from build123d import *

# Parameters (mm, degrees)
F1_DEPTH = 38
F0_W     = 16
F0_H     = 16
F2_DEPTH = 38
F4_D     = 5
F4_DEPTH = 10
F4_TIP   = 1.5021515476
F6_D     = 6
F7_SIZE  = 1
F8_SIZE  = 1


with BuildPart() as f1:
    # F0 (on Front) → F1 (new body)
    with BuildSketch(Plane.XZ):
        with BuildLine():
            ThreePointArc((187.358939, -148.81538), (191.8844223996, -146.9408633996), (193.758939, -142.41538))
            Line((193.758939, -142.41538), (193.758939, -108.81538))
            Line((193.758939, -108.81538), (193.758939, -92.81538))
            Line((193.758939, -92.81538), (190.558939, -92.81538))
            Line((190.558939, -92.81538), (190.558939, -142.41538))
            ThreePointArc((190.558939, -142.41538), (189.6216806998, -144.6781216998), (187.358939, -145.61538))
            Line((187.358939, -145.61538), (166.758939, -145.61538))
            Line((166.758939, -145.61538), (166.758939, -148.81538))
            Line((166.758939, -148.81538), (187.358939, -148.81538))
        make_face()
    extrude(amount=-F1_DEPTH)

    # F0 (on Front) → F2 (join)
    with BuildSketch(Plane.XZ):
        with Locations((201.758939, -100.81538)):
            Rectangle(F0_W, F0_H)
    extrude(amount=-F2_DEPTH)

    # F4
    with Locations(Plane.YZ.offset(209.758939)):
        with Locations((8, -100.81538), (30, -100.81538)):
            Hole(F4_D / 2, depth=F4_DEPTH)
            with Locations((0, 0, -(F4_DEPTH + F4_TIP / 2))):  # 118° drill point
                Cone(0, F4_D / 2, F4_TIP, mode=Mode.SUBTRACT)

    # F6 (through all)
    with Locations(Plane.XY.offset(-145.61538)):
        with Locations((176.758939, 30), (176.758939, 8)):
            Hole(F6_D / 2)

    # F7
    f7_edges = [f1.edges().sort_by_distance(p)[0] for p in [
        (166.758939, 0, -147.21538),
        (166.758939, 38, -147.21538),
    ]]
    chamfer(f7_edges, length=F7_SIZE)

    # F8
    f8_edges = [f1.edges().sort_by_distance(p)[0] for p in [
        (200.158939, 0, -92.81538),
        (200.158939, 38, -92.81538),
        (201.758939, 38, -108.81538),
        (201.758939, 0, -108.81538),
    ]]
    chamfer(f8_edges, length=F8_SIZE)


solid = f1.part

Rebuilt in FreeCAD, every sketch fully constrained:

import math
import FreeCAD as App
import Part
import Sketcher
from FreeCAD import Vector


def edges_at(feature, points):
    """Names of the edges that pass closest to the given points."""
    edges = feature.Shape.Edges
    near = lambda p: min(range(len(edges)), key=lambda i: edges[i].distToShape(Part.Vertex(*p))[0])
    return sorted({f"Edge{near(p) + 1}" for p in points})


def add_polygon(sketch, points):
    """Adds a closed chain of lines whose ends are joined by coincident constraints."""
    first, n = sketch.GeometryCount, len(points)
    for a, b in zip(points, points[1:] + points[:1]):
        sketch.addGeometry(Part.LineSegment(App.Vector(*a, 0), App.Vector(*b, 0)), False)
    for i in range(n):
        sketch.addConstraint(Sketcher.Constraint("Coincident", first + i, 2, first + (i + 1) % n, 1))

doc = App.newDocument("Part")
params = doc.addObject("Spreadsheet::Sheet", "Params")
for row, (alias, value) in enumerate([
    ("sketch1_radius", "6.4 mm"),
    ("sketch1_radius2", "3.2 mm"),
    ("sketch1_width", "20.6 mm"),
    ("sketch1_height", "49.6 mm"),
    ("pad1_length", "38 mm"),
    ("sketch2_width", "16 mm"),
    ("pad2_length", "38 mm"),
    ("sketch3_diameter", "5 mm"),
    ("hole_diameter", "5 mm"),
    ("hole_depth", "10 mm"),
    ("sketch4_diameter", "6 mm"),
    ("hole2_diameter", "6 mm"),
    ("chamfer_size", "1 mm"),
    ("chamfer2_size", "1 mm"),
], start=1):
    params.set(f"A{row}", alias)
    params.set(f"B{row}", "=" + value)
    params.setAlias(f"B{row}", alias)

body = doc.addObject("PartDesign::Body", "Body")

# Sketch on XZ plane
sketch1 = doc.addObject("Sketcher::SketchObject", "Sketch")
body.addObject(sketch1)
sketch1.AttachmentSupport = (doc.XZ_Plane, [""])
sketch1.MapMode = "FlatFace"
sketch1.addGeometry(Part.ArcOfCircle(Part.Circle(Vector(187.4, -142.4, 0), Vector(0, 0, 1), 6.4), math.radians(-90), math.radians(0)), False)
sketch1.addGeometry(Part.LineSegment(Vector(193.8, -142.4, 0), Vector(193.8, -92.8, 0)), False)
sketch1.addGeometry(Part.LineSegment(Vector(193.8, -92.8, 0), Vector(190.6, -92.8, 0)), False)
sketch1.addGeometry(Part.LineSegment(Vector(190.6, -92.8, 0), Vector(190.6, -142.4, 0)), False)
sketch1.addGeometry(Part.ArcOfCircle(Part.Circle(Vector(187.4, -142.4, 0), Vector(0, 0, 1), 3.2), math.radians(-90), math.radians(0)), False)
sketch1.addGeometry(Part.LineSegment(Vector(187.4, -145.6, 0), Vector(166.8, -145.6, 0)), False)
sketch1.addGeometry(Part.LineSegment(Vector(166.8, -145.6, 0), Vector(166.8, -148.8, 0)), False)
sketch1.addGeometry(Part.LineSegment(Vector(166.8, -148.8, 0), Vector(187.4, -148.8, 0)), False)
sketch1.addConstraint(Sketcher.Constraint("Tangent", 0, 2, 1, 1))
sketch1.addConstraint(Sketcher.Constraint("Coincident", 1, 2, 2, 1))
sketch1.addConstraint(Sketcher.Constraint("Coincident", 2, 2, 3, 1))
sketch1.addConstraint(Sketcher.Constraint("Tangent", 3, 2, 4, 2))
sketch1.addConstraint(Sketcher.Constraint("Tangent", 4, 1, 5, 1))
sketch1.addConstraint(Sketcher.Constraint("Coincident", 5, 2, 6, 1))
sketch1.addConstraint(Sketcher.Constraint("Coincident", 6, 2, 7, 1))
sketch1.addConstraint(Sketcher.Constraint("Tangent", 7, 2, 0, 1))
sketch1.addConstraint(Sketcher.Constraint("Vertical", 1))
sketch1.addConstraint(Sketcher.Constraint("Horizontal", 2))
sketch1.addConstraint(Sketcher.Constraint("Vertical", 3))
sketch1.addConstraint(Sketcher.Constraint("Horizontal", 5))
sketch1.addConstraint(Sketcher.Constraint("Vertical", 6))
sketch1.addConstraint(Sketcher.Constraint("Horizontal", 7))
sketch1.addConstraint(Sketcher.Constraint("Coincident", 4, 3, 0, 3))
sketch1.addConstraint(Sketcher.Constraint("Radius", 0, 6.4))
sketch1.addConstraint(Sketcher.Constraint("Radius", 4, 3.2))
sketch1.addConstraint(Sketcher.Constraint("DistanceX", 5, 2, 5, 1, 20.6))
sketch1.addConstraint(Sketcher.Constraint("DistanceY", 1, 1, 1, 2, 49.6))
sketch1.addConstraint(Sketcher.Constraint("DistanceX", -1, 1, 0, 3, 187.358939))
sketch1.addConstraint(Sketcher.Constraint("DistanceY", 0, 3, -1, 1, 142.41538))
sketch1.setExpression("Constraints[15]", "Params.sketch1_radius")
sketch1.setExpression("Constraints[16]", "Params.sketch1_radius2")
sketch1.setExpression("Constraints[17]", "Params.sketch1_width")
sketch1.setExpression("Constraints[18]", "Params.sketch1_height")
pad1 = doc.addObject("PartDesign::Pad", "Pad")
body.addObject(pad1)
pad1.Profile = sketch1
pad1.setExpression("Length", "Params.pad1_length")
pad1.Reversed = True

# Sketch on XZ plane
sketch2 = doc.addObject("Sketcher::SketchObject", "Sketch001")
body.addObject(sketch2)
sketch2.AttachmentSupport = (doc.XZ_Plane, [""])
sketch2.MapMode = "FlatFace"
add_polygon(sketch2, [(194, -93), (194, -109), (210, -109), (210, -93)])  # lines 0-3
sketch2.addConstraint(Sketcher.Constraint("Vertical", 0))
sketch2.addConstraint(Sketcher.Constraint("Horizontal", 1))
sketch2.addConstraint(Sketcher.Constraint("Vertical", 2))
sketch2.addConstraint(Sketcher.Constraint("Horizontal", 3))
sketch2.addConstraint(Sketcher.Constraint("Equal", 3, 0))
sketch2.addConstraint(Sketcher.Constraint("DistanceX", 1, 1, 1, 2, 16.0))
sketch2.addConstraint(Sketcher.Constraint("DistanceX", -1, 1, 0, 2, 193.758939))
sketch2.addConstraint(Sketcher.Constraint("DistanceY", 0, 2, -1, 1, 108.81538))
sketch2.setExpression("Constraints[9]", "Params.sketch2_width")
pad2 = doc.addObject("PartDesign::Pad", "Pad001")
body.addObject(pad2)
pad2.Profile = sketch2
pad2.setExpression("Length", "Params.pad2_length")
pad2.Reversed = True

# Sketch on YZ plane
sketch3 = doc.addObject("Sketcher::SketchObject", "Sketch002")
body.addObject(sketch3)
sketch3.AttachmentSupport = (doc.YZ_Plane, [""])
sketch3.MapMode = "FlatFace"
sketch3.AttachmentOffset = App.Placement(Vector(0, 0, 209.758939), App.Rotation())
sketch3.addGeometry(Part.Circle(Vector(8, -100.8, 0), Vector(0, 0, 1), 2.5), False)
sketch3.addGeometry(Part.Circle(Vector(30, -100.8, 0), Vector(0, 0, 1), 2.5), False)
sketch3.addConstraint(Sketcher.Constraint("Equal", 0, 1))
sketch3.addConstraint(Sketcher.Constraint("Horizontal", 0, 3, 1, 3))
sketch3.addConstraint(Sketcher.Constraint("Diameter", 0, 5.0))
sketch3.addConstraint(Sketcher.Constraint("DistanceX", -1, 1, 0, 3, 8.0))
sketch3.addConstraint(Sketcher.Constraint("DistanceX", -1, 1, 1, 3, 30.0))
sketch3.addConstraint(Sketcher.Constraint("DistanceY", 0, 3, -1, 1, 100.81538))
sketch3.setExpression("Constraints[2]", "Params.sketch3_diameter")
doc.recompute()
hole = doc.addObject("PartDesign::Hole", "Hole")
body.addObject(hole)
hole.Profile = sketch3
hole.ThreadType = "None"
hole.setExpression("Diameter", "Params.hole_diameter")
hole.DepthType = "Dimension"
hole.setExpression("Depth", "Params.hole_depth")
hole.DrillPoint = "Angled"
hole.DrillPointAngle = 118

# Sketch on XY plane
sketch4 = doc.addObject("Sketcher::SketchObject", "Sketch003")
body.addObject(sketch4)
sketch4.AttachmentSupport = (doc.XY_Plane, [""])
sketch4.MapMode = "FlatFace"
sketch4.AttachmentOffset = App.Placement(Vector(0, 0, -145.61538), App.Rotation())
sketch4.addGeometry(Part.Circle(Vector(176.8, 30, 0), Vector(0, 0, 1), 3), False)
sketch4.addGeometry(Part.Circle(Vector(176.8, 8, 0), Vector(0, 0, 1), 3), False)
sketch4.addConstraint(Sketcher.Constraint("Equal", 0, 1))
sketch4.addConstraint(Sketcher.Constraint("Vertical", 0, 3, 1, 3))
sketch4.addConstraint(Sketcher.Constraint("Diameter", 0, 6.0))
sketch4.addConstraint(Sketcher.Constraint("DistanceY", -1, 1, 0, 3, 30.0))
sketch4.addConstraint(Sketcher.Constraint("DistanceY", -1, 1, 1, 3, 8.0))
sketch4.addConstraint(Sketcher.Constraint("DistanceX", -1, 1, 0, 3, 176.758939))
sketch4.setExpression("Constraints[2]", "Params.sketch4_diameter")
doc.recompute()
hole2 = doc.addObject("PartDesign::Hole", "Hole001")
body.addObject(hole2)
hole2.Profile = sketch4
hole2.ThreadType = "None"
hole2.setExpression("Diameter", "Params.hole2_diameter")
hole2.DepthType = "ThroughAll"
doc.recompute()

chamfer = doc.addObject("PartDesign::Chamfer", "Chamfer")
body.addObject(chamfer)
chamfer.Base = (hole2, edges_at(hole2, [(166.759, 0, -147.215), (166.759, 38, -147.215)]))
chamfer.setExpression("Size", "Params.chamfer_size")
doc.recompute()

chamfer2 = doc.addObject("PartDesign::Chamfer", "Chamfer001")
body.addObject(chamfer2)
chamfer2.Base = (chamfer, edges_at(chamfer, [
    (200.159, 0, -92.815),
    (200.159, 38, -92.815),
    (201.759, 38, -108.815),
    (201.759, 0, -108.815),
]))
chamfer2.setExpression("Size", "Params.chamfer2_size")

doc.recompute()
